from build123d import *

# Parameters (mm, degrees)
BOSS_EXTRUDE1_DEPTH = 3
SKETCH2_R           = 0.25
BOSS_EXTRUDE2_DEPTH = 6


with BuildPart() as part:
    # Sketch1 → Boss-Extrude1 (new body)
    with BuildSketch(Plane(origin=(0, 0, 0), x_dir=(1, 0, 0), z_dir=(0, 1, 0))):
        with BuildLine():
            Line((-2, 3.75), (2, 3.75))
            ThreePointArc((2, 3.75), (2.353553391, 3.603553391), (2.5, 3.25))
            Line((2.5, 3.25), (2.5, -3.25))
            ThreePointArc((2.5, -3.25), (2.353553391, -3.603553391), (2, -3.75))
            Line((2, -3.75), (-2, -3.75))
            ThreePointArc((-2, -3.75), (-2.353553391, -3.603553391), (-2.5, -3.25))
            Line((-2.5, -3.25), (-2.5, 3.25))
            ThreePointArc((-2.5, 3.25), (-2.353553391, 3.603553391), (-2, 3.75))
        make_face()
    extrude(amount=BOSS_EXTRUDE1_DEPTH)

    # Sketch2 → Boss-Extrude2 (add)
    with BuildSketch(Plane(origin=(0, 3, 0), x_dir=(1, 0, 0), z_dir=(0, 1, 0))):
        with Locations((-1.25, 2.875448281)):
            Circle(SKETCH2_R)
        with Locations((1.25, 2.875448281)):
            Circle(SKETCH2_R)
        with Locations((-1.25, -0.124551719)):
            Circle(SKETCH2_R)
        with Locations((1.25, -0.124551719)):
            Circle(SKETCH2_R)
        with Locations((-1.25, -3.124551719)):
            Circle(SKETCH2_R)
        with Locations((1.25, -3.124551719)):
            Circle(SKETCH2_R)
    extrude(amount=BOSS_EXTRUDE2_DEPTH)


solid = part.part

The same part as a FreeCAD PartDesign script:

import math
import FreeCAD as App
import Part
import Sketcher

V = App.Vector

doc = App.newDocument("Part")
body = doc.addObject("PartDesign::Body", "Body")

sketch1 = body.newObject("Sketcher::SketchObject", "Sketch")
sketch1.AttachmentSupport = (doc.getObject("XZ_Plane"), [""])
sketch1.MapMode = "FlatFace"
sketch1.addGeometry([
    Part.LineSegment(V(2, -3.75, 0), V(-2, -3.75, 0)),
    Part.ArcOfCircle(Part.Circle(V(-2, -3.25, 0), V(0, 0, 1), 0.5), math.radians(180), math.radians(270)),
    Part.LineSegment(V(-2.5, -3.25, 0), V(-2.5, 3.25, 0)),
    Part.ArcOfCircle(Part.Circle(V(-2, 3.25, 0), V(0, 0, 1), 0.5), math.radians(90), math.radians(180)),
    Part.LineSegment(V(-2, 3.75, 0), V(2, 3.75, 0)),
    Part.ArcOfCircle(Part.Circle(V(2, 3.25, 0), V(0, 0, 1), 0.5), math.radians(0), math.radians(90)),
    Part.LineSegment(V(2.5, 3.25, 0), V(2.5, -3.25, 0)),
    Part.ArcOfCircle(Part.Circle(V(2, -3.25, 0), V(0, 0, 1), 0.5), math.radians(-90), math.radians(0)),
], False)
sketch1.addConstraint([
    Sketcher.Constraint("Tangent", 0, 2, 1, 2),
    Sketcher.Constraint("Tangent", 1, 1, 2, 1),
    Sketcher.Constraint("Tangent", 2, 2, 3, 2),
    Sketcher.Constraint("Tangent", 3, 1, 4, 1),
    Sketcher.Constraint("Tangent", 4, 2, 5, 2),
    Sketcher.Constraint("Tangent", 5, 1, 6, 1),
    Sketcher.Constraint("Tangent", 6, 2, 7, 2),
    Sketcher.Constraint("Tangent", 7, 1, 0, 1),
    Sketcher.Constraint("Horizontal", 0),
    Sketcher.Constraint("Vertical", 2),
    Sketcher.Constraint("Horizontal", 4),
    Sketcher.Constraint("Vertical", 6),
    Sketcher.Constraint("Equal", 1, 3),
    Sketcher.Constraint("Equal", 3, 5),
    Sketcher.Constraint("Equal", 5, 7),
    Sketcher.Constraint("Symmetric", 1, 3, 5, 3, -1, 1),
    Sketcher.Constraint("Radius", 1, 0.5),
    Sketcher.Constraint("DistanceX", 0, 2, 0, 1, 4.0),
    Sketcher.Constraint("DistanceY", 2, 1, 2, 2, 6.5),
])
pad1 = body.newObject("PartDesign::Pad", "Pad")
pad1.Profile = sketch1
pad1.Length = 3
pad1.Reversed = True

sketch2 = body.newObject("Sketcher::SketchObject", "Sketch001")
sketch2.AttachmentSupport = (doc.getObject("XZ_Plane"), [""])
sketch2.MapMode = "FlatFace"
sketch2.AttachmentOffset = App.Placement(V(0, 0, -3), App.Rotation())
sketch2.addGeometry([
    Part.Circle(V(-1.25, -2.875448, 0), V(0, 0, 1), 0.25),
    Part.Circle(V(1.25, -2.875448, 0), V(0, 0, 1), 0.25),
    Part.Circle(V(-1.25, 0.124552, 0), V(0, 0, 1), 0.25),
    Part.Circle(V(1.25, 0.124552, 0), V(0, 0, 1), 0.25),
    Part.Circle(V(-1.25, 3.124552, 0), V(0, 0, 1), 0.25),
    Part.Circle(V(1.25, 3.124552, 0), V(0, 0, 1), 0.25),
], False)
sketch2.addConstraint([
    Sketcher.Constraint("Equal", 0, 1),
    Sketcher.Constraint("Equal", 1, 2),
    Sketcher.Constraint("Equal", 2, 3),
    Sketcher.Constraint("Equal", 3, 4),
    Sketcher.Constraint("Equal", 4, 5),
    Sketcher.Constraint("Symmetric", 0, 3, 1, 3, -2),
    Sketcher.Constraint("Symmetric", 2, 3, 3, 3, -2),
    Sketcher.Constraint("Symmetric", 4, 3, 5, 3, -2),
    Sketcher.Constraint("Vertical", 0, 3, 2, 3),
    Sketcher.Constraint("Vertical", 2, 3, 4, 3),
    Sketcher.Constraint("Diameter", 0, 0.5),
    Sketcher.Constraint("DistanceY", 0, 3, 2, 3, 3.0),
    Sketcher.Constraint("DistanceY", 2, 3, 4, 3, 3.0),
    Sketcher.Constraint("DistanceX", 0, 3, 1, 3, 2.5),
    Sketcher.Constraint("DistanceY", 0, 3, -1, 1, 2.875448),
])
pad2 = body.newObject("PartDesign::Pad", "Pad001")
pad2.Profile = sketch2
pad2.Length = 6
pad2.Reversed = True

doc.recompute()
